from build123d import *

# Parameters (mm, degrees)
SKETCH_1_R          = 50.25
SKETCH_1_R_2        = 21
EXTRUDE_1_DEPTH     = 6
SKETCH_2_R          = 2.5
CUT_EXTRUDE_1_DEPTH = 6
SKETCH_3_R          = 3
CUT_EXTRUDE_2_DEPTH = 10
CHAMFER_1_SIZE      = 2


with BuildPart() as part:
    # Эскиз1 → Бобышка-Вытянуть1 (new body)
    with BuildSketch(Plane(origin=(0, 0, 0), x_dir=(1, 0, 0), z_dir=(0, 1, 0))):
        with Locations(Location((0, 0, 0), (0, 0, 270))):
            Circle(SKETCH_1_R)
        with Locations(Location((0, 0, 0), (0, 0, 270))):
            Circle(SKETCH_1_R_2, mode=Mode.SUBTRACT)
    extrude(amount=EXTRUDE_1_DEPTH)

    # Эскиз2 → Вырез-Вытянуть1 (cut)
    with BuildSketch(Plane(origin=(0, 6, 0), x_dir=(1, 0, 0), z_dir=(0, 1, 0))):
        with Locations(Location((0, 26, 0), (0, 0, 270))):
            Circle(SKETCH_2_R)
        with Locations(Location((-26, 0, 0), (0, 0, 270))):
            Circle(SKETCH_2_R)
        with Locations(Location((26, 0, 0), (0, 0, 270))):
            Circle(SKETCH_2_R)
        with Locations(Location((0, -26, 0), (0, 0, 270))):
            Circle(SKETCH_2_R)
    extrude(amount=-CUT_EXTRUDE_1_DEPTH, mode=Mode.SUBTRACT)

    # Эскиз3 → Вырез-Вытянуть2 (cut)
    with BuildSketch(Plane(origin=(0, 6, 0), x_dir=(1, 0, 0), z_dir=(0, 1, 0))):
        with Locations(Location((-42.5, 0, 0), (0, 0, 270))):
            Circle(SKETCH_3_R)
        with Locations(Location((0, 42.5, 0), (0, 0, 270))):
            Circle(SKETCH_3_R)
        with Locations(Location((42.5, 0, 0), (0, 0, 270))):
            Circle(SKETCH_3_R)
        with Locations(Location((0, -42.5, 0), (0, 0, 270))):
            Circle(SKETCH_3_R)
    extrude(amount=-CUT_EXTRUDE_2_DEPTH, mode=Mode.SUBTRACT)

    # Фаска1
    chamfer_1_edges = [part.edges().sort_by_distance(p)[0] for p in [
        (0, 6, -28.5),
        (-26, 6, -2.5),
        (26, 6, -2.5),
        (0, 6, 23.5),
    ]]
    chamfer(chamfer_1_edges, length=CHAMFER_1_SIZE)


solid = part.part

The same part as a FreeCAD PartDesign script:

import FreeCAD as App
import Part
import Sketcher
Q = App.Units.Quantity


def edges_at(feature, points):
    """Names of the edges that pass closest to the given points."""
    edges = feature.Shape.Edges
    near = lambda p: min(range(len(edges)), key=lambda i: edges[i].distToShape(Part.Vertex(*p))[0])
    return sorted({f"Edge{near(p) + 1}" for p in points})

doc = App.newDocument("Part")
params = doc.addObject("Spreadsheet::Sheet", "Params")
for row, (alias, value) in enumerate([
    ("sketch1_diameter", "42 mm"),
    ("sketch1_diameter2", "100.5 mm"),
    ("pad1_length", "6 mm"),
    ("sketch2_diameter", "5 mm"),
    ("pocket1_length", "6 mm"),
    ("sketch3_diameter", "6 mm"),
    ("pocket2_length", "10 mm"),
    ("chamfer_size", "2 mm"),
], start=1):
    params.set(f"A{row}", alias)
    params.set(f"B{row}", "=" + value)
    params.setAlias(f"B{row}", alias)

body = doc.addObject("PartDesign::Body", "Body")

# Sketch on XZ plane
sketch1 = body.newObject("Sketcher::SketchObject", "Sketch")
sketch1.AttachmentSupport = (doc.getObject("XZ_Plane"), [""])
sketch1.MapMode = "FlatFace"
sketch1.addGeometry([
    Part.Circle(App.Vector(0, 0, 0), App.Vector(0, 0, 1), 50.25),
    Part.Circle(App.Vector(0, 0, 0), App.Vector(0, 0, 1), 21),
], False)
sketch1.addConstraint([
    Sketcher.Constraint("Coincident", 0, 3, -1, 1),
    Sketcher.Constraint("Coincident", 1, 3, -1, 1),
    Sketcher.Constraint("Diameter", 1, Q("42 mm")),
    Sketcher.Constraint("Diameter", 0, Q("100.5 mm")),
])
sketch1.setExpression("Constraints[2]", "Params.sketch1_diameter")
sketch1.setExpression("Constraints[3]", "Params.sketch1_diameter2")
pad1 = body.newObject("PartDesign::Pad", "Pad")
pad1.Profile = sketch1
pad1.setExpression("Length", "Params.pad1_length")
pad1.Reversed = True

# Sketch on XZ plane
sketch2 = body.newObject("Sketcher::SketchObject", "Sketch001")
sketch2.AttachmentSupport = (doc.getObject("XZ_Plane"), [""])
sketch2.MapMode = "FlatFace"
sketch2.AttachmentOffset = App.Placement(App.Vector(0, 0, -6), App.Rotation())
sketch2.addGeometry([
    Part.Circle(App.Vector(0, -26, 0), App.Vector(0, 0, 1), 2.5),
    Part.Circle(App.Vector(-26, 0, 0), App.Vector(0, 0, 1), 2.5),
    Part.Circle(App.Vector(26, 0, 0), App.Vector(0, 0, 1), 2.5),
    Part.Circle(App.Vector(0, 26, 0), App.Vector(0, 0, 1), 2.5),
], False)
sketch2.addConstraint([
    Sketcher.Constraint("Equal", 0, 1),
    Sketcher.Constraint("Equal", 1, 2),
    Sketcher.Constraint("Equal", 2, 3),
    Sketcher.Constraint("Symmetric", 1, 3, 2, 3, -1, 1),
    Sketcher.Constraint("Symmetric", 0, 3, 3, 3, -1, 1),
    Sketcher.Constraint("PointOnObject", 0, 3, -2),
    Sketcher.Constraint("PointOnObject", 1, 3, -1),
    Sketcher.Constraint("Diameter", 0, Q("5 mm")),
    Sketcher.Constraint("DistanceY", 0, 3, -1, 1, Q("26 mm")),
    Sketcher.Constraint("DistanceX", 1, 3, -1, 1, Q("26 mm")),
])
sketch2.setExpression("Constraints[7]", "Params.sketch2_diameter")
pocket1 = body.newObject("PartDesign::Pocket", "Pocket")
pocket1.Profile = sketch2
pocket1.setExpression("Length", "Params.pocket1_length")
pocket1.Reversed = True

# Sketch on XZ plane
sketch3 = body.newObject("Sketcher::SketchObject", "Sketch002")
sketch3.AttachmentSupport = (doc.getObject("XZ_Plane"), [""])
sketch3.MapMode = "FlatFace"
sketch3.AttachmentOffset = App.Placement(App.Vector(0, 0, -6), App.Rotation())
sketch3.addGeometry([
    Part.Circle(App.Vector(-42.5, 0, 0), App.Vector(0, 0, 1), 3),
    Part.Circle(App.Vector(0, -42.5, 0), App.Vector(0, 0, 1), 3),
    Part.Circle(App.Vector(42.5, 0, 0), App.Vector(0, 0, 1), 3),
    Part.Circle(App.Vector(0, 42.5, 0), App.Vector(0, 0, 1), 3),
], False)
sketch3.addConstraint([
    Sketcher.Constraint("Equal", 0, 1),
    Sketcher.Constraint("Equal", 1, 2),
    Sketcher.Constraint("Equal", 2, 3),
    Sketcher.Constraint("Symmetric", 0, 3, 2, 3, -1, 1),
    Sketcher.Constraint("Symmetric", 1, 3, 3, 3, -1, 1),
    Sketcher.Constraint("PointOnObject", 0, 3, -1),
    Sketcher.Constraint("PointOnObject", 1, 3, -2),
    Sketcher.Constraint("Diameter", 0, Q("6 mm")),
    Sketcher.Constraint("DistanceX", 0, 3, 2, 3, Q("85 mm")),
    Sketcher.Constraint("DistanceY", 1, 3, 3, 3, Q("85 mm")),
])
sketch3.setExpression("Constraints[7]", "Params.sketch3_diameter")
pocket2 = body.newObject("PartDesign::Pocket", "Pocket001")
pocket2.Profile = sketch3
pocket2.setExpression("Length", "Params.pocket2_length")
pocket2.Reversed = True
doc.recompute()

chamfer = body.newObject("PartDesign::Chamfer", "Chamfer")
chamfer.Base = (pocket2, edges_at(pocket2, [
    (0, 6, -28.5),
    (-26, 6, -2.5),
    (26, 6, -2.5),
    (0, 6, 23.5),
]))
chamfer.setExpression("Size", "Params.chamfer_size")

doc.recompute()
